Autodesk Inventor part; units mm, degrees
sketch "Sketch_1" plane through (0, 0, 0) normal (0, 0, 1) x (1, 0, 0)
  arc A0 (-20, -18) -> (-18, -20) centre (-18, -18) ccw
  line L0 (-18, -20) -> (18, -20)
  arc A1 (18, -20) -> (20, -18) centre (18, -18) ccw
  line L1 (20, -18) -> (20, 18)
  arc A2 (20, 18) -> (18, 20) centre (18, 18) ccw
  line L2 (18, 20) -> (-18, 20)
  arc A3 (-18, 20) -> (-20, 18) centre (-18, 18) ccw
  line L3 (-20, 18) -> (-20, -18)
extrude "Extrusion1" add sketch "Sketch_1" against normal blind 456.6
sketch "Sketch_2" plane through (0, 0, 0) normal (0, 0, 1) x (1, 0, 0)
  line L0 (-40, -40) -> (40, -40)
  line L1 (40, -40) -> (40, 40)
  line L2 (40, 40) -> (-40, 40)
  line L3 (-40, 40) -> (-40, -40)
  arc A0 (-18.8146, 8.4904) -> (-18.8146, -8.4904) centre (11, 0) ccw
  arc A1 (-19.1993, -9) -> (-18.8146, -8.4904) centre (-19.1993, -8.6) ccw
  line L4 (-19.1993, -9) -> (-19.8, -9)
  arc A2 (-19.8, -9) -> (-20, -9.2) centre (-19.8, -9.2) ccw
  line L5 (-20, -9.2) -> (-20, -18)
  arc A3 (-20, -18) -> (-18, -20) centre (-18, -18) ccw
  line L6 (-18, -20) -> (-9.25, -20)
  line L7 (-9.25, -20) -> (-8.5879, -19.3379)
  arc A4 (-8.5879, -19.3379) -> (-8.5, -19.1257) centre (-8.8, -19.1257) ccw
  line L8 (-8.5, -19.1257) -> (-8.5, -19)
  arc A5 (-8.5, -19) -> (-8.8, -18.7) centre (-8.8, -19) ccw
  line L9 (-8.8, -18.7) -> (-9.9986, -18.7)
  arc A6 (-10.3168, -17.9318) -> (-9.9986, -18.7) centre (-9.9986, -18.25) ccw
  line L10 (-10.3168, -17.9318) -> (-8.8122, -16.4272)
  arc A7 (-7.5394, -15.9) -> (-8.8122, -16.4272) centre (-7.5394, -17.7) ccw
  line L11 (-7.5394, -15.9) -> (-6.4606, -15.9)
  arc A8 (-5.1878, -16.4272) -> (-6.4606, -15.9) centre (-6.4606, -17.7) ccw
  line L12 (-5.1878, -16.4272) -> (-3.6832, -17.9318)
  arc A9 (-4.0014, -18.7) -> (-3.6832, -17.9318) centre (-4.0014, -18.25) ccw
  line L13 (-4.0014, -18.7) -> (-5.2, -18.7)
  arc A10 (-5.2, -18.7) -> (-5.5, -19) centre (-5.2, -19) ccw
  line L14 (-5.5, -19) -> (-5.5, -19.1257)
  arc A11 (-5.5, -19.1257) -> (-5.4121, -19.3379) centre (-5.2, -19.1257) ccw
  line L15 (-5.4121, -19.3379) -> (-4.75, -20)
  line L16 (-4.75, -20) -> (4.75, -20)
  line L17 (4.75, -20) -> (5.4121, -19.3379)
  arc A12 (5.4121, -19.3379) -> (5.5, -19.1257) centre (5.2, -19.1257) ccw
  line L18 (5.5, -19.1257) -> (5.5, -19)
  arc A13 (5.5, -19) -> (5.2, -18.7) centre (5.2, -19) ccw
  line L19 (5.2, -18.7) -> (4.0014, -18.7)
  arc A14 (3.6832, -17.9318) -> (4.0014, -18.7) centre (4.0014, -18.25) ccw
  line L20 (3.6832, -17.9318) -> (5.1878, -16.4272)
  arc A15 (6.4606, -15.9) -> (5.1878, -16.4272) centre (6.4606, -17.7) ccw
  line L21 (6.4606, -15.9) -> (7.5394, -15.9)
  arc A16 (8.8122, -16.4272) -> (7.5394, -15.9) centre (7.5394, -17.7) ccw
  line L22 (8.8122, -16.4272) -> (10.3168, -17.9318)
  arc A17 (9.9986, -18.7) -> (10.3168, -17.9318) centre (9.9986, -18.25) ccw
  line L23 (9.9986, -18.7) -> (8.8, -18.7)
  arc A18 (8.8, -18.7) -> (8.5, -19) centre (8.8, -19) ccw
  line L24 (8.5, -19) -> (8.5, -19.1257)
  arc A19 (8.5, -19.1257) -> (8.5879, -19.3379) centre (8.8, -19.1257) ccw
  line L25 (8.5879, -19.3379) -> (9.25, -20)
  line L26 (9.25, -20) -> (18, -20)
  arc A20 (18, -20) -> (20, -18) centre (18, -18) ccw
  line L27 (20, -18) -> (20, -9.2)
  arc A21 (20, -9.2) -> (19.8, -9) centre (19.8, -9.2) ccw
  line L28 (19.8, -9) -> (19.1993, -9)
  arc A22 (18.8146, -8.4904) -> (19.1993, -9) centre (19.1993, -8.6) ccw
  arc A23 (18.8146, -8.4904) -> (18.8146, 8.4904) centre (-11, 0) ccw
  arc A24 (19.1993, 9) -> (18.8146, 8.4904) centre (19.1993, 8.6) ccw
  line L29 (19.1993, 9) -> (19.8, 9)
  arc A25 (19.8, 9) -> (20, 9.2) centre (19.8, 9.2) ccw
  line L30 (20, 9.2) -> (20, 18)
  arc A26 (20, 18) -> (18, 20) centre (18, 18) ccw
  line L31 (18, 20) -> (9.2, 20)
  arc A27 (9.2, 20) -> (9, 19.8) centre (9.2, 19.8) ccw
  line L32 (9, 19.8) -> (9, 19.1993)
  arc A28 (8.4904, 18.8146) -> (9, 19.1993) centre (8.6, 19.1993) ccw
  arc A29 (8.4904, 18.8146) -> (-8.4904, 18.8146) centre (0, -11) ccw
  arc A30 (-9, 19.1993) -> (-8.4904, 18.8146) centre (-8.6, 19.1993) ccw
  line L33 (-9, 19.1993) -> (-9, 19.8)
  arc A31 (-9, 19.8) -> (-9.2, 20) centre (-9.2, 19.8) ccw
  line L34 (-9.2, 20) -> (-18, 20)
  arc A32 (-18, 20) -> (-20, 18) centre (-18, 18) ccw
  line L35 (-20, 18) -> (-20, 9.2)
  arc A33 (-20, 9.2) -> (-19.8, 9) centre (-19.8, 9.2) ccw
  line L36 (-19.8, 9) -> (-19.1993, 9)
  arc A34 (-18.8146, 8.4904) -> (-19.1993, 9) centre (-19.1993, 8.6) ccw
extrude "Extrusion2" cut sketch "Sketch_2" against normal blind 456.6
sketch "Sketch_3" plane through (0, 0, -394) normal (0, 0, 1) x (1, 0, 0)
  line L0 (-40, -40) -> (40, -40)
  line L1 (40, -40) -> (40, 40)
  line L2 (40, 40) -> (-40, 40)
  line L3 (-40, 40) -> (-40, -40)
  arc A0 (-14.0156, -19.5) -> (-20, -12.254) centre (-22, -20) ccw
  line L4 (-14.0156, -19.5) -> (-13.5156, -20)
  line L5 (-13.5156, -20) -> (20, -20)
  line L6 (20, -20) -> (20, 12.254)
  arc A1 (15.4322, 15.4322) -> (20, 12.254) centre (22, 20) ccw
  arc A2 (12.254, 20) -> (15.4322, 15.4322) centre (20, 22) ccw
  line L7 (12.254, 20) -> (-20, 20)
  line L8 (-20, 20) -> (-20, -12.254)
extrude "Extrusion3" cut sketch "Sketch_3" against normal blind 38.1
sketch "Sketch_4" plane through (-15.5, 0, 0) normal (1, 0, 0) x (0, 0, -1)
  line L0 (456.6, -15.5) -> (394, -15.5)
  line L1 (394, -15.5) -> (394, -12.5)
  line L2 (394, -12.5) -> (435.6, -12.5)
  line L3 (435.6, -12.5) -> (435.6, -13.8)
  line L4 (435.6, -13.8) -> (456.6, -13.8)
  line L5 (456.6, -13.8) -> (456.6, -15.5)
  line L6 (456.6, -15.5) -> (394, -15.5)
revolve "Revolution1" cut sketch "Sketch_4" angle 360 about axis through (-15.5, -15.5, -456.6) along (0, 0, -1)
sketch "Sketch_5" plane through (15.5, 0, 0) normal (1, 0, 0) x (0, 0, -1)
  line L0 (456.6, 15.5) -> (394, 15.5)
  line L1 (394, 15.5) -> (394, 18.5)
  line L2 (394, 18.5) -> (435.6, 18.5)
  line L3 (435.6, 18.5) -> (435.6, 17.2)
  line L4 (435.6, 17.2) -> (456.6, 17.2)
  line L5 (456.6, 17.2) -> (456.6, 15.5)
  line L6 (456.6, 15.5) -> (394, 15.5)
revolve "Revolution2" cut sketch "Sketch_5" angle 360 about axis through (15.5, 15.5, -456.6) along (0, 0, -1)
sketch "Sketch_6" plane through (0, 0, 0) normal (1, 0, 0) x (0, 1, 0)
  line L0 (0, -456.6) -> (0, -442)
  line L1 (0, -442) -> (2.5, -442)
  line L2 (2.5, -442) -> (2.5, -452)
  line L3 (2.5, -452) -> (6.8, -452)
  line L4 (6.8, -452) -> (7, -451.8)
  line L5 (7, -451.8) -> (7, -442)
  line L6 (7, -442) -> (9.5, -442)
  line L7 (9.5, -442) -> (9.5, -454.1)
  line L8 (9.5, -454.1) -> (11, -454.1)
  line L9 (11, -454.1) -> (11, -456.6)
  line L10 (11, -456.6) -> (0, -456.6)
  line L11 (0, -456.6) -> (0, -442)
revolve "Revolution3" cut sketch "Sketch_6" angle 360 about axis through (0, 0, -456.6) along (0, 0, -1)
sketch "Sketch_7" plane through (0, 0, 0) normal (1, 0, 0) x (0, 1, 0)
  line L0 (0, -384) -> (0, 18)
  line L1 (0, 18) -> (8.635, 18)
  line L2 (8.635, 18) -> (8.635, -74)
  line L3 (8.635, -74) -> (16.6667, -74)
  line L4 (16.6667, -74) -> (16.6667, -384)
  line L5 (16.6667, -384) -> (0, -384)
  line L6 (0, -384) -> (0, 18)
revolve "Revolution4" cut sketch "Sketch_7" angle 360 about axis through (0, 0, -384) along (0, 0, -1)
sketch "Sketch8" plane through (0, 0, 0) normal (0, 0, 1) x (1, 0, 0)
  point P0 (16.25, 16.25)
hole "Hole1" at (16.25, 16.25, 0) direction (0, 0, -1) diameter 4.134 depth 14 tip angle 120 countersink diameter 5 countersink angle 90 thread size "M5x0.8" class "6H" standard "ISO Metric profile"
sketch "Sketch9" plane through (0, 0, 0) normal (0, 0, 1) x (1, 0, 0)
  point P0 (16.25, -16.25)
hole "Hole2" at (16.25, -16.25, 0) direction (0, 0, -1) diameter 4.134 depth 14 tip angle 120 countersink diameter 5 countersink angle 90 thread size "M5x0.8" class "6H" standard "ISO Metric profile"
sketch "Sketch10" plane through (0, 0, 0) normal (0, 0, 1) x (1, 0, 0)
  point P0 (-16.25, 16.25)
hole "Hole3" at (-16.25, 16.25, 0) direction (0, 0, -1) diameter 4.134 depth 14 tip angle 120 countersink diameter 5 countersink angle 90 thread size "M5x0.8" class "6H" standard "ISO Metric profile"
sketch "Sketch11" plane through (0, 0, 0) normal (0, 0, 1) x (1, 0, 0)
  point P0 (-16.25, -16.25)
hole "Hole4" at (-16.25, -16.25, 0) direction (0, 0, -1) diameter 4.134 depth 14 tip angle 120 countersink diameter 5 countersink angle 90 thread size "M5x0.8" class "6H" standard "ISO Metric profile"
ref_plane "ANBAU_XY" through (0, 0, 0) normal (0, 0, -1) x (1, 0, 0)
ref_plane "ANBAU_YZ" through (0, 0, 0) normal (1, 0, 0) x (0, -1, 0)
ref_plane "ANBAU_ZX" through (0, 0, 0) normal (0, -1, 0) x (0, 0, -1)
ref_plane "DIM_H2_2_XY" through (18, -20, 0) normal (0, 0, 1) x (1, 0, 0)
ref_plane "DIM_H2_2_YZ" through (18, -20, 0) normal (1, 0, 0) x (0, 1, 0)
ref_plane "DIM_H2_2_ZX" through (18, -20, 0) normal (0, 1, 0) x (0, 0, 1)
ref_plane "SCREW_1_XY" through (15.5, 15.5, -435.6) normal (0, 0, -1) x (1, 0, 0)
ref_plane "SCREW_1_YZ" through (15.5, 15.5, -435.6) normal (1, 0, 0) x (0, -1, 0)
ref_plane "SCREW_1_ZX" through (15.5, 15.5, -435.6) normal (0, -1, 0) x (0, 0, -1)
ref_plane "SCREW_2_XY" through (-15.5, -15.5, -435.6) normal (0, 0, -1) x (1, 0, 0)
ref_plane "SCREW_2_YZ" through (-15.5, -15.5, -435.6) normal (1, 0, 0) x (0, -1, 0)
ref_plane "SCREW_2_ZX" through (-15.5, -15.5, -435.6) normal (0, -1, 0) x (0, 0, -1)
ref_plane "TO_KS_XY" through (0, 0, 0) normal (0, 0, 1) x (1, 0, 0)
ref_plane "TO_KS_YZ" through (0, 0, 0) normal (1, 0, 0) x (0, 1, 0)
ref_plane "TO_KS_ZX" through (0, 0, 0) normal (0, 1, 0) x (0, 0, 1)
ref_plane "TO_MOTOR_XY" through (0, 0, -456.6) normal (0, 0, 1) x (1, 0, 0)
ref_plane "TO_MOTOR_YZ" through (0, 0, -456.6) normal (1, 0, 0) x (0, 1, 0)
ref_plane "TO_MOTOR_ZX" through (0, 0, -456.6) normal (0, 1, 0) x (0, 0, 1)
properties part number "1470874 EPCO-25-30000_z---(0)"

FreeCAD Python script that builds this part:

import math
import FreeCAD as App
import Part
import Sketcher
from FreeCAD import Vector
Q = App.Units.Quantity


def add_polygon(sketch, points):
    """Adds a closed chain of lines whose ends are joined by coincident constraints."""
    first, n = sketch.GeometryCount, len(points)
    for a, b in zip(points, points[1:] + points[:1]):
        sketch.addGeometry(Part.LineSegment(App.Vector(*a, 0), App.Vector(*b, 0)), False)
    for i in range(n):
        sketch.addConstraint(Sketcher.Constraint("Coincident", first + i, 2, first + (i + 1) % n, 1))

doc = App.newDocument("Part")
body = doc.addObject("PartDesign::Body", "Body")

# Sketch on XY plane
sketch1 = body.newObject("Sketcher::SketchObject", "Sketch")
sketch1.AttachmentSupport = (doc.getObject("XY_Plane"), [""])
sketch1.MapMode = "FlatFace"
sketch1.addGeometry([
    Part.LineSegment(Vector(-20, 18, 0), Vector(-20, -18, 0)),  # 0
    Part.ArcOfCircle(Part.Circle(Vector(-18, -18, 0), Vector(0, 0, 1), 2), math.radians(180), math.radians(270)),  # 1
    Part.LineSegment(Vector(-18, -20, 0), Vector(18, -20, 0)),  # 2
    Part.ArcOfCircle(Part.Circle(Vector(18, -18, 0), Vector(0, 0, 1), 2), math.radians(-90), math.radians(0)),  # 3
    Part.LineSegment(Vector(20, -18, 0), Vector(20, 18, 0)),  # 4
    Part.ArcOfCircle(Part.Circle(Vector(18, 18, 0), Vector(0, 0, 1), 2), math.radians(0), math.radians(90)),  # 5
    Part.LineSegment(Vector(18, 20, 0), Vector(-18, 20, 0)),  # 6
    Part.ArcOfCircle(Part.Circle(Vector(-18, 18, 0), Vector(0, 0, 1), 2), math.radians(90), math.radians(180)),  # 7
], False)
sketch1.addConstraint([
    Sketcher.Constraint("Tangent", 0, 2, 1, 1),
    Sketcher.Constraint("Tangent", 1, 2, 2, 1),
    Sketcher.Constraint("Tangent", 2, 2, 3, 1),
    Sketcher.Constraint("Tangent", 3, 2, 4, 1),
    Sketcher.Constraint("Tangent", 4, 2, 5, 1),
    Sketcher.Constraint("Tangent", 5, 2, 6, 1),
    Sketcher.Constraint("Tangent", 6, 2, 7, 1),
    Sketcher.Constraint("Tangent", 7, 2, 0, 1),
    Sketcher.Constraint("Vertical", 0),
    Sketcher.Constraint("Horizontal", 2),
    Sketcher.Constraint("Vertical", 4),
    Sketcher.Constraint("Horizontal", 6),
    Sketcher.Constraint("Equal", 1, 3),
    Sketcher.Constraint("Equal", 3, 5),
    Sketcher.Constraint("Equal", 5, 7),
    Sketcher.Constraint("Symmetric", 1, 3, 5, 3, -1, 1),
    Sketcher.Constraint("Equal", 6, 0),
    Sketcher.Constraint("Radius", 1, Q("2 mm")),
    Sketcher.Constraint("DistanceX", 2, 1, 2, 2, Q("36 mm")),
])
pad1 = body.newObject("PartDesign::Pad", "Pad")
pad1.Profile = sketch1
pad1.Length = 456.6
pad1.Reversed = True

# Sketch on XY plane
sketch2 = body.newObject("Sketcher::SketchObject", "Sketch001")
sketch2.AttachmentSupport = (doc.getObject("XY_Plane"), [""])
sketch2.MapMode = "FlatFace"
add_polygon(sketch2, [(-40, 40), (-40, -40), (40, -40), (40, 40)])  # lines 0-3
sketch2.addGeometry(Part.ArcOfCircle(Part.Circle(Vector(11, 0, 0), Vector(0, 0, 1), 31), math.radians(164), math.radians(196)), False)  # 4
sketch2.addGeometry(Part.ArcOfCircle(Part.Circle(Vector(-19.2, 8.6, 0), Vector(0, 0, 1), 0.4), math.radians(-16), math.radians(90)), False)  # 5
sketch2.addGeometry(Part.LineSegment(Vector(-19.2, 9, 0), Vector(-19.8, 9, 0)), False)  # 6
sketch2.addGeometry(Part.ArcOfCircle(Part.Circle(Vector(-19.8, 9.2, 0), Vector(0, 0, 1), 0.2), math.radians(180), math.radians(270)), False)  # 7
sketch2.addGeometry(Part.LineSegment(Vector(-20, 9.2, 0), Vector(-20, 18, 0)), False)  # 8
sketch2.addGeometry(Part.ArcOfCircle(Part.Circle(Vector(-18, 18, 0), Vector(0, 0, 1), 2), math.radians(90), math.radians(180)), False)  # 9
sketch2.addGeometry(Part.LineSegment(Vector(-18, 20, 0), Vector(-9.2, 20, 0)), False)  # 10
sketch2.addGeometry(Part.ArcOfCircle(Part.Circle(Vector(-9.2, 19.8, 0), Vector(0, 0, 1), 0.2), math.radians(0), math.radians(90)), False)  # 11
sketch2.addGeometry(Part.LineSegment(Vector(-9, 19.8, 0), Vector(-9, 19.2, 0)), False)  # 12
sketch2.addGeometry(Part.ArcOfCircle(Part.Circle(Vector(-8.6, 19.2, 0), Vector(0, 0, 1), 0.4), math.radians(180), math.radians(286)), False)  # 13
sketch2.addGeometry(Part.ArcOfCircle(Part.Circle(Vector(0, -11, 0), Vector(0, 0, 1), 31), math.radians(74), math.radians(106)), False)  # 14
sketch2.addGeometry(Part.ArcOfCircle(Part.Circle(Vector(8.6, 19.2, 0), Vector(0, 0, 1), 0.4), math.radians(-106), math.radians(0)), False)  # 15
sketch2.addGeometry(Part.LineSegment(Vector(9, 19.2, 0), Vector(9, 19.8, 0)), False)  # 16
sketch2.addGeometry(Part.ArcOfCircle(Part.Circle(Vector(9.2, 19.8, 0), Vector(0, 0, 1), 0.2), math.radians(90), math.radians(180)), False)  # 17
sketch2.addGeometry(Part.LineSegment(Vector(9.2, 20, 0), Vector(18, 20, 0)), False)  # 18
sketch2.addGeometry(Part.ArcOfCircle(Part.Circle(Vector(18, 18, 0), Vector(0, 0, 1), 2), math.radians(0), math.radians(90)), False)  # 19
sketch2.addGeometry(Part.LineSegment(Vector(20, 18, 0), Vector(20, 9.2, 0)), False)  # 20
sketch2.addGeometry(Part.ArcOfCircle(Part.Circle(Vector(19.8, 9.2, 0), Vector(0, 0, 1), 0.2), math.radians(-90), math.radians(0)), False)  # 21
sketch2.addGeometry(Part.LineSegment(Vector(19.8, 9, 0), Vector(19.2, 9, 0)), False)  # 22
sketch2.addGeometry(Part.ArcOfCircle(Part.Circle(Vector(19.2, 8.6, 0), Vector(0, 0, 1), 0.4), math.radians(90), math.radians(196)), False)  # 23
sketch2.addGeometry(Part.ArcOfCircle(Part.Circle(Vector(-11, 0, 0), Vector(0, 0, 1), 31), math.radians(-16), math.radians(16)), False)  # 24
sketch2.addGeometry(Part.ArcOfCircle(Part.Circle(Vector(19.2, -8.6, 0), Vector(0, 0, 1), 0.4), math.radians(164), math.radians(270)), False)  # 25
sketch2.addGeometry(Part.LineSegment(Vector(19.2, -9, 0), Vector(19.8, -9, 0)), False)  # 26
sketch2.addGeometry(Part.ArcOfCircle(Part.Circle(Vector(19.8, -9.2, 0), Vector(0, 0, 1), 0.2), math.radians(0), math.radians(90)), False)  # 27
sketch2.addGeometry(Part.LineSegment(Vector(20, -9.2, 0), Vector(20, -18, 0)), False)  # 28
sketch2.addGeometry(Part.ArcOfCircle(Part.Circle(Vector(18, -18, 0), Vector(0, 0, 1), 2), math.radians(-90), math.radians(0)), False)  # 29
sketch2.addGeometry(Part.LineSegment(Vector(18, -20, 0), Vector(9.25, -20, 0)), False)  # 30
sketch2.addGeometry(Part.LineSegment(Vector(9.25, -20, 0), Vector(8.59, -19.34, 0)), False)  # 31
sketch2.addGeometry(Part.ArcOfCircle(Part.Circle(Vector(8.8, -19.13, 0), Vector(0, 0, 1), 0.3), math.radians(180), math.radians(225)), False)  # 32
sketch2.addGeometry(Part.LineSegment(Vector(8.5, -19.13, 0), Vector(8.5, -19, 0)), False)  # 33
sketch2.addGeometry(Part.ArcOfCircle(Part.Circle(Vector(8.8, -19, 0), Vector(0, 0, 1), 0.3), math.radians(90), math.radians(180)), False)  # 34
sketch2.addGeometry(Part.LineSegment(Vector(8.8, -18.7, 0), Vector(10, -18.7, 0)), False)  # 35
sketch2.addGeometry(Part.ArcOfCircle(Part.Circle(Vector(10, -18.25, 0), Vector(0, 0, 1), 0.45), math.radians(-90), math.radians(45)), False)  # 36
sketch2.addGeometry(Part.LineSegment(Vector(10.32, -17.93, 0), Vector(8.81, -16.43, 0)), False)  # 37
sketch2.addGeometry(Part.ArcOfCircle(Part.Circle(Vector(7.54, -17.7, 0), Vector(0, 0, 1), 1.8), math.radians(45), math.radians(90)), False)  # 38
sketch2.addGeometry(Part.LineSegment(Vector(7.54, -15.9, 0), Vector(6.46, -15.9, 0)), False)  # 39
sketch2.addGeometry(Part.ArcOfCircle(Part.Circle(Vector(6.46, -17.7, 0), Vector(0, 0, 1), 1.8), math.radians(90), math.radians(135)), False)  # 40
sketch2.addGeometry(Part.LineSegment(Vector(5.19, -16.43, 0), Vector(3.68, -17.93, 0)), False)  # 41
sketch2.addGeometry(Part.ArcOfCircle(Part.Circle(Vector(4, -18.25, 0), Vector(0, 0, 1), 0.45), math.radians(135), math.radians(270)), False)  # 42
sketch2.addGeometry(Part.LineSegment(Vector(4, -18.7, 0), Vector(5.2, -18.7, 0)), False)  # 43
sketch2.addGeometry(Part.ArcOfCircle(Part.Circle(Vector(5.2, -19, 0), Vector(0, 0, 1), 0.3), math.radians(0), math.radians(90)), False)  # 44
sketch2.addGeometry(Part.LineSegment(Vector(5.5, -19, 0), Vector(5.5, -19.13, 0)), False)  # 45
sketch2.addGeometry(Part.ArcOfCircle(Part.Circle(Vector(5.2, -19.13, 0), Vector(0, 0, 1), 0.3), math.radians(-45), math.radians(0)), False)  # 46
sketch2.addGeometry(Part.LineSegment(Vector(5.41, -19.34, 0), Vector(4.75, -20, 0)), False)  # 47
sketch2.addGeometry(Part.LineSegment(Vector(4.75, -20, 0), Vector(-4.75, -20, 0)), False)  # 48
sketch2.addGeometry(Part.LineSegment(Vector(-4.75, -20, 0), Vector(-5.41, -19.34, 0)), False)  # 49
sketch2.addGeometry(Part.ArcOfCircle(Part.Circle(Vector(-5.2, -19.13, 0), Vector(0, 0, 1), 0.3), math.radians(180), math.radians(225)), False)  # 50
sketch2.addGeometry(Part.LineSegment(Vector(-5.5, -19.13, 0), Vector(-5.5, -19, 0)), False)  # 51
sketch2.addGeometry(Part.ArcOfCircle(Part.Circle(Vector(-5.2, -19, 0), Vector(0, 0, 1), 0.3), math.radians(90), math.radians(180)), False)  # 52
sketch2.addGeometry(Part.LineSegment(Vector(-5.2, -18.7, 0), Vector(-4, -18.7, 0)), False)  # 53
sketch2.addGeometry(Part.ArcOfCircle(Part.Circle(Vector(-4, -18.25, 0), Vector(0, 0, 1), 0.45), math.radians(-90), math.radians(45)), False)  # 54
sketch2.addGeometry(Part.LineSegment(Vector(-3.68, -17.93, 0), Vector(-5.19, -16.43, 0)), False)  # 55
sketch2.addGeometry(Part.ArcOfCircle(Part.Circle(Vector(-6.46, -17.7, 0), Vector(0, 0, 1), 1.8), math.radians(45), math.radians(90)), False)  # 56
sketch2.addGeometry(Part.LineSegment(Vector(-6.46, -15.9, 0), Vector(-7.54, -15.9, 0)), False)  # 57
sketch2.addGeometry(Part.ArcOfCircle(Part.Circle(Vector(-7.54, -17.7, 0), Vector(0, 0, 1), 1.8), math.radians(90), math.radians(135)), False)  # 58
sketch2.addGeometry(Part.LineSegment(Vector(-8.81, -16.43, 0), Vector(-10.32, -17.93, 0)), False)  # 59
sketch2.addGeometry(Part.ArcOfCircle(Part.Circle(Vector(-10, -18.25, 0), Vector(0, 0, 1), 0.45), math.radians(135), math.radians(270)), False)  # 60
sketch2.addGeometry(Part.LineSegment(Vector(-10, -18.7, 0), Vector(-8.8, -18.7, 0)), False)  # 61
sketch2.addGeometry(Part.ArcOfCircle(Part.Circle(Vector(-8.8, -19, 0), Vector(0, 0, 1), 0.3), math.radians(0), math.radians(90)), False)  # 62
sketch2.addGeometry(Part.LineSegment(Vector(-8.5, -19, 0), Vector(-8.5, -19.13, 0)), False)  # 63
sketch2.addGeometry(Part.ArcOfCircle(Part.Circle(Vector(-8.8, -19.13, 0), Vector(0, 0, 1), 0.3), math.radians(-45), math.radians(0)), False)  # 64
sketch2.addGeometry(Part.LineSegment(Vector(-8.59, -19.34, 0), Vector(-9.25, -20, 0)), False)  # 65
sketch2.addGeometry(Part.LineSegment(Vector(-9.25, -20, 0), Vector(-18, -20, 0)), False)  # 66
sketch2.addGeometry(Part.ArcOfCircle(Part.Circle(Vector(-18, -18, 0), Vector(0, 0, 1), 2), math.radians(180), math.radians(270)), False)  # 67
sketch2.addGeometry(Part.LineSegment(Vector(-20, -18, 0), Vector(-20, -9.2, 0)), False)  # 68
sketch2.addGeometry(Part.ArcOfCircle(Part.Circle(Vector(-19.8, -9.2, 0), Vector(0, 0, 1), 0.2), math.radians(90), math.radians(180)), False)  # 69
sketch2.addGeometry(Part.LineSegment(Vector(-19.8, -9, 0), Vector(-19.2, -9, 0)), False)  # 70
sketch2.addGeometry(Part.ArcOfCircle(Part.Circle(Vector(-19.2, -8.6, 0), Vector(0, 0, 1), 0.4), math.radians(-90), math.radians(16)), False)  # 71
sketch2.addConstraint([
    Sketcher.Constraint("Tangent", 4, 1, 5, 1),
    Sketcher.Constraint("Tangent", 5, 2, 6, 1),
    Sketcher.Constraint("Tangent", 6, 2, 7, 2),
    Sketcher.Constraint("Tangent", 7, 1, 8, 1),
    Sketcher.Constraint("Tangent", 8, 2, 9, 2),
    Sketcher.Constraint("Tangent", 9, 1, 10, 1),
    Sketcher.Constraint("Tangent", 10, 2, 11, 2),
    Sketcher.Constraint("Tangent", 11, 1, 12, 1),
    Sketcher.Constraint("Tangent", 12, 2, 13, 1),
    Sketcher.Constraint("Tangent", 13, 2, 14, 2),
    Sketcher.Constraint("Tangent", 14, 1, 15, 1),
    Sketcher.Constraint("Tangent", 15, 2, 16, 1),
    Sketcher.Constraint("Tangent", 16, 2, 17, 2),
    Sketcher.Constraint("Tangent", 17, 1, 18, 1),
    Sketcher.Constraint("Tangent", 18, 2, 19, 2),
    Sketcher.Constraint("Tangent", 19, 1, 20, 1),
    Sketcher.Constraint("Tangent", 20, 2, 21, 2),
    Sketcher.Constraint("Tangent", 21, 1, 22, 1),
    Sketcher.Constraint("Tangent", 22, 2, 23, 1),
    Sketcher.Constraint("Tangent", 23, 2, 24, 2),
    Sketcher.Constraint("Tangent", 24, 1, 25, 1),
    Sketcher.Constraint("Tangent", 25, 2, 26, 1),
    Sketcher.Constraint("Tangent", 26, 2, 27, 2),
    Sketcher.Constraint("Tangent", 27, 1, 28, 1),
    Sketcher.Constraint("Tangent", 28, 2, 29, 2),
    Sketcher.Constraint("Tangent", 29, 1, 30, 1),
    Sketcher.Constraint("Coincident", 30, 2, 31, 1),
    Sketcher.Constraint("Tangent", 31, 2, 32, 2),
    Sketcher.Constraint("Tangent", 32, 1, 33, 1),
    Sketcher.Constraint("Tangent", 33, 2, 34, 2),
    Sketcher.Constraint("Tangent", 34, 1, 35, 1),
    Sketcher.Constraint("Tangent", 35, 2, 36, 1),
    Sketcher.Constraint("Tangent", 36, 2, 37, 1),
    Sketcher.Constraint("Tangent", 37, 2, 38, 1),
    Sketcher.Constraint("Tangent", 38, 2, 39, 1),
    Sketcher.Constraint("Tangent", 39, 2, 40, 1),
    Sketcher.Constraint("Tangent", 40, 2, 41, 1),
    Sketcher.Constraint("Tangent", 41, 2, 42, 1),
    Sketcher.Constraint("Tangent", 42, 2, 43, 1),
    Sketcher.Constraint("Tangent", 43, 2, 44, 2),
    Sketcher.Constraint("Tangent", 44, 1, 45, 1),
    Sketcher.Constraint("Tangent", 45, 2, 46, 2),
    Sketcher.Constraint("Tangent", 46, 1, 47, 1),
    Sketcher.Constraint("Coincident", 47, 2, 48, 1),
    Sketcher.Constraint("Coincident", 48, 2, 49, 1),
    Sketcher.Constraint("Tangent", 49, 2, 50, 2),
    Sketcher.Constraint("Tangent", 50, 1, 51, 1),
    Sketcher.Constraint("Tangent", 51, 2, 52, 2),
    Sketcher.Constraint("Tangent", 52, 1, 53, 1),
    Sketcher.Constraint("Tangent", 53, 2, 54, 1),
    Sketcher.Constraint("Tangent", 54, 2, 55, 1),
    Sketcher.Constraint("Tangent", 55, 2, 56, 1),
    Sketcher.Constraint("Tangent", 56, 2, 57, 1),
    Sketcher.Constraint("Tangent", 57, 2, 58, 1),
    Sketcher.Constraint("Tangent", 58, 2, 59, 1),
    Sketcher.Constraint("Tangent", 59, 2, 60, 1),
    Sketcher.Constraint("Tangent", 60, 2, 61, 1),
    Sketcher.Constraint("Tangent", 61, 2, 62, 2),
    Sketcher.Constraint("Tangent", 62, 1, 63, 1),
    Sketcher.Constraint("Tangent", 63, 2, 64, 2),
    Sketcher.Constraint("Tangent", 64, 1, 65, 1),
    Sketcher.Constraint("Coincident", 65, 2, 66, 1),
    Sketcher.Constraint("Tangent", 66, 2, 67, 2),
    Sketcher.Constraint("Tangent", 67, 1, 68, 1),
    Sketcher.Constraint("Tangent", 68, 2, 69, 2),
    Sketcher.Constraint("Tangent", 69, 1, 70, 1),
    Sketcher.Constraint("Tangent", 70, 2, 71, 1),
    Sketcher.Constraint("Tangent", 71, 2, 4, 2),
    Sketcher.Constraint("Vertical", 0),
    Sketcher.Constraint("Horizontal", 1),
    Sketcher.Constraint("Vertical", 2),
    Sketcher.Constraint("Horizontal", 3),
    Sketcher.Constraint("Horizontal", 6),
    Sketcher.Constraint("Vertical", 8),
    Sketcher.Constraint("Horizontal", 10),
    Sketcher.Constraint("Vertical", 12),
    Sketcher.Constraint("Vertical", 16),
    Sketcher.Constraint("Horizontal", 18),
    Sketcher.Constraint("Vertical", 20),
    Sketcher.Constraint("Horizontal", 22),
    Sketcher.Constraint("Horizontal", 26),
    Sketcher.Constraint("Vertical", 28),
    Sketcher.Constraint("Horizontal", 30),
    Sketcher.Constraint("Vertical", 33),
    Sketcher.Constraint("Horizontal", 35),
    Sketcher.Constraint("Horizontal", 39),
    Sketcher.Constraint("Horizontal", 43),
    Sketcher.Constraint("Vertical", 45),
    Sketcher.Constraint("Horizontal", 48),
    Sketcher.Constraint("Vertical", 51),
    Sketcher.Constraint("Horizontal", 53),
    Sketcher.Constraint("Horizontal", 57),
    Sketcher.Constraint("Horizontal", 61),
    Sketcher.Constraint("Vertical", 63),
    Sketcher.Constraint("Horizontal", 66),
    Sketcher.Constraint("Vertical", 68),
    Sketcher.Constraint("Horizontal", 70),
    Sketcher.Constraint("Equal", 7, 11),
    Sketcher.Constraint("Equal", 5, 13),
    Sketcher.Constraint("Equal", 4, 14),
    Sketcher.Constraint("Equal", 13, 15),
    Sketcher.Constraint("Equal", 11, 17),
    Sketcher.Constraint("Equal", 9, 19),
    Sketcher.Constraint("Equal", 17, 21),
    Sketcher.Constraint("Equal", 15, 23),
    Sketcher.Constraint("Equal", 14, 24),
    Sketcher.Constraint("Equal", 23, 25),
    Sketcher.Constraint("Equal", 21, 27),
    Sketcher.Constraint("Equal", 19, 29),
    Sketcher.Constraint("Equal", 32, 34),
    Sketcher.Constraint("Equal", 38, 40),
    Sketcher.Constraint("Equal", 36, 42),
    Sketcher.Constraint("Equal", 34, 44),
    Sketcher.Constraint("Equal", 44, 46),
    Sketcher.Constraint("Equal", 46, 50),
    Sketcher.Constraint("Equal", 50, 52),
    Sketcher.Constraint("Equal", 42, 54),
    Sketcher.Constraint("Equal", 40, 56),
    Sketcher.Constraint("Equal", 56, 58),
    Sketcher.Constraint("Equal", 54, 60),
    Sketcher.Constraint("Equal", 52, 62),
    Sketcher.Constraint("Equal", 62, 64),
    Sketcher.Constraint("Equal", 29, 67),
    Sketcher.Constraint("Equal", 27, 69),
    Sketcher.Constraint("Equal", 25, 71),
    Sketcher.Constraint("Symmetric", 4, 3, 24, 3, -1, 1),
    Sketcher.Constraint("Symmetric", 7, 3, 27, 3, -1, 1),
    Sketcher.Constraint("Symmetric", 19, 3, 67, 3, -1, 1),
    Sketcher.Constraint("Symmetric", 0, 2, 2, 2, -1, 1),
    Sketcher.Constraint("Symmetric", 13, 3, 15, 3, -2),
    Sketcher.Constraint("Symmetric", 9, 3, 19, 3, -2),
    Sketcher.Constraint("Symmetric", 5, 3, 23, 3, -2),
    Sketcher.Constraint("Symmetric", 46, 3, 50, 3, -2),
    Sketcher.Constraint("Symmetric", 42, 3, 54, 3, -2),
    Sketcher.Constraint("Symmetric", 40, 3, 56, 3, -2),
    Sketcher.Constraint("Symmetric", 36, 3, 60, 3, -2),
    Sketcher.Constraint("Symmetric", 32, 3, 64, 3, -2),
    Sketcher.Constraint("Symmetric", 30, 2, 65, 2, -2),
    Sketcher.Constraint("Parallel", 31, 37),
    Sketcher.Constraint("Perpendicular", 37, 41),
    Sketcher.Constraint("Parallel", 41, 47),
    Sketcher.Constraint("Perpendicular", 47, 49),
    Sketcher.Constraint("Parallel", 49, 55),
    Sketcher.Constraint("Perpendicular", 55, 59),
    Sketcher.Constraint("Horizontal", 36, 3, 42, 3),
    Sketcher.Constraint("Horizontal", 32, 3, 46, 3),
    Sketcher.Constraint("Horizontal", 27, 3, 69, 3),
    Sketcher.Constraint("Horizontal", 30, 2, 47, 2),
    Sketcher.Constraint("Equal", 35, 43),
    Sketcher.Constraint("Equal", 3, 0),
    Sketcher.Constraint("Equal", 18, 8),
    Sketcher.Constraint("Equal", 70, 12),
    Sketcher.Constraint("Radius", 4, Q("31 mm")),
    Sketcher.Constraint("Radius", 9, Q("2 mm")),
    Sketcher.Constraint("Radius", 5, Q("0.4 mm")),
    Sketcher.Constraint("Radius", 7, Q("0.2 mm")),
    Sketcher.Constraint("Radius", 32, Q("0.3 mm")),
    Sketcher.Constraint("Radius", 38, Q("1.8 mm")),
    Sketcher.Constraint("DistanceX", 1, 1, 1, 2, Q("80 mm")),
    Sketcher.Constraint("Radius", 36, Q("0.45 mm")),
    Sketcher.Constraint("DistanceX", 10, 1, 10, 2, Q("8.8 mm")),
    Sketcher.Constraint("DistanceX", 48, 2, 48, 1, Q("9.5 mm")),
    Sketcher.Constraint("DistanceX", -1, 1, 4, 3, Q("11 mm")),
    Sketcher.Constraint("DistanceX", 9, 3, -1, 1, Q("18 mm")),
    Sketcher.Constraint("DistanceY", -1, 1, 9, 3, Q("18 mm")),
    Sketcher.Constraint("DistanceY", 34, 3, -1, 1, Q("19 mm")),
    Sketcher.Constraint("DistanceX", 30, 2, 30, 1, Q("8.75 mm")),
    Sketcher.Constraint("DistanceX", -1, 1, 32, 3, Q("8.8 mm")),
    Sketcher.Constraint("DistanceY", 38, 3, -1, 1, Q("17.7 mm")),
    Sketcher.Constraint("DistanceX", 35, 1, 35, 2, Q("1.1986 mm")),
])
pocket1 = body.newObject("PartDesign::Pocket", "Pocket")
pocket1.Profile = sketch2
pocket1.Length = 456.6

# Sketch on XY plane
sketch3 = body.newObject("Sketcher::SketchObject", "Sketch002")
sketch3.AttachmentSupport = (doc.getObject("XY_Plane"), [""])
sketch3.MapMode = "FlatFace"
sketch3.AttachmentOffset = App.Placement(Vector(0, 0, -394), App.Rotation())
add_polygon(sketch3, [(-40, 40), (-40, -40), (40, -40), (40, 40)])  # lines 0-3
sketch3.addGeometry(Part.LineSegment(Vector(-13.5, -20, 0), Vector(-14, -19.5, 0)), False)  # 4
sketch3.addGeometry(Part.ArcOfCircle(Part.Circle(Vector(-22, -20, 0), Vector(0, 0, 1), 8), math.radians(4), math.radians(76)), False)  # 5
sketch3.addGeometry(Part.LineSegment(Vector(-20, -12.3, 0), Vector(-20, 20, 0)), False)  # 6
sketch3.addGeometry(Part.LineSegment(Vector(-20, 20, 0), Vector(12.3, 20, 0)), False)  # 7
sketch3.addGeometry(Part.ArcOfCircle(Part.Circle(Vector(20, 22, 0), Vector(0, 0, 1), 8), math.radians(-166), math.radians(-125)), False)  # 8
sketch3.addGeometry(Part.ArcOfCircle(Part.Circle(Vector(22, 20, 0), Vector(0, 0, 1), 8), math.radians(-145), math.radians(-104)), False)  # 9
sketch3.addGeometry(Part.LineSegment(Vector(20, 12.3, 0), Vector(20, -20, 0)), False)  # 10
sketch3.addGeometry(Part.LineSegment(Vector(20, -20, 0), Vector(-13.5, -20, 0)), False)  # 11
sketch3.addConstraint([
    Sketcher.Constraint("Coincident", 4, 2, 5, 1),
    Sketcher.Constraint("Coincident", 5, 2, 6, 1),
    Sketcher.Constraint("Coincident", 6, 2, 7, 1),
    Sketcher.Constraint("Coincident", 7, 2, 8, 1),
    Sketcher.Constraint("Coincident", 8, 2, 9, 1),
    Sketcher.Constraint("Coincident", 9, 2, 10, 1),
    Sketcher.Constraint("Coincident", 10, 2, 11, 1),
    Sketcher.Constraint("Coincident", 11, 2, 4, 1),
    Sketcher.Constraint("Vertical", 0),
    Sketcher.Constraint("Horizontal", 1),
    Sketcher.Constraint("Vertical", 2),
    Sketcher.Constraint("Horizontal", 3),
    Sketcher.Constraint("Vertical", 6),
    Sketcher.Constraint("Horizontal", 7),
    Sketcher.Constraint("Vertical", 10),
    Sketcher.Constraint("Horizontal", 11),
    Sketcher.Constraint("Equal", 5, 8),
    Sketcher.Constraint("Equal", 8, 9),
    Sketcher.Constraint("Symmetric", 5, 3, 9, 3, -1, 1),
    Sketcher.Constraint("Symmetric", 0, 2, 2, 2, -1, 1),
    Sketcher.Constraint("Symmetric", 6, 2, 10, 2, -1, 1),
    Sketcher.Constraint("Horizontal", 9, 3, 6, 2),
    Sketcher.Constraint("Vertical", 8, 3, 9, 2),
    Sketcher.Constraint("Equal", 3, 0),
    Sketcher.Constraint("Equal", 7, 6),
    Sketcher.Constraint("Radius", 5, Q("8 mm")),
    Sketcher.Constraint("DistanceX", 1, 1, 1, 2, Q("80 mm")),
    Sketcher.Constraint("Angle", 4, Q("135 deg")),
    Sketcher.Constraint("DistanceX", 5, 3, -1, 1, Q("22 mm")),
    Sketcher.Constraint("DistanceY", 5, 3, -1, 1, Q("20 mm")),
    Sketcher.Constraint("DistanceX", -1, 1, 8, 3, Q("20 mm")),
    Sketcher.Constraint("DistanceY", 4, 2, -1, 1, Q("19.5 mm")),
])
pocket2 = body.newObject("PartDesign::Pocket", "Pocket001")
pocket2.Profile = sketch3
pocket2.Length = 38.1

# Sketch on YZ plane
sketch4 = body.newObject("Sketcher::SketchObject", "Sketch003")
sketch4.AttachmentSupport = (doc.getObject("YZ_Plane"), [""])
sketch4.MapMode = "FlatFace"
sketch4.AttachmentOffset = App.Placement(Vector(0, 0, -15.5), App.Rotation())
add_polygon(sketch4, [(-15.5, -394), (-15.5, -456.6), (-13.8, -456.6), (-13.8, -435.6), (-12.5, -435.6), (-12.5, -394)])  # lines 0-5
sketch4.addGeometry(Part.LineSegment(Vector(-15.5, -394, 0), Vector(-15.5, -456.6, 0)), True)  # axis
sketch4.addConstraint([
    Sketcher.Constraint("Vertical", 0),
    Sketcher.Constraint("Horizontal", 1),
    Sketcher.Constraint("Vertical", 2),
    Sketcher.Constraint("Horizontal", 3),
    Sketcher.Constraint("Vertical", 4),
    Sketcher.Constraint("Horizontal", 5),
    Sketcher.Constraint("Vertical", 6),
    Sketcher.Constraint("Coincident", 6, 1, 5, 2),
    Sketcher.Constraint("Horizontal", 1, 2, 6, 2),
    Sketcher.Constraint("DistanceX", 5, 2, 5, 1, Q("3 mm")),
    Sketcher.Constraint("DistanceY", 2, 1, 2, 2, Q("21 mm")),
    Sketcher.Constraint("DistanceX", 1, 1, 1, 2, Q("1.7 mm")),
    Sketcher.Constraint("DistanceY", 0, 2, 0, 1, Q("62.6 mm")),
    Sketcher.Constraint("DistanceY", 4, 2, -1, 1, Q("394 mm")),
    Sketcher.Constraint("DistanceX", 0, 2, -1, 1, Q("15.5 mm")),
])
groove = body.newObject("PartDesign::Groove", "Groove")
groove.Profile = sketch4
groove.ReferenceAxis = (sketch4, ["Axis0"])
groove.Angle = 360

# Sketch on YZ plane
sketch5 = body.newObject("Sketcher::SketchObject", "Sketch004")
sketch5.AttachmentSupport = (doc.getObject("YZ_Plane"), [""])
sketch5.MapMode = "FlatFace"
sketch5.AttachmentOffset = App.Placement(Vector(0, 0, 15.5), App.Rotation())
add_polygon(sketch5, [(15.5, -394), (15.5, -456.6), (17.2, -456.6), (17.2, -435.6), (18.5, -435.6), (18.5, -394)])  # lines 0-5
sketch5.addGeometry(Part.LineSegment(Vector(15.5, -394, 0), Vector(15.5, -456.6, 0)), True)  # axis
sketch5.addConstraint([
    Sketcher.Constraint("Vertical", 0),
    Sketcher.Constraint("Horizontal", 1),
    Sketcher.Constraint("Vertical", 2),
    Sketcher.Constraint("Horizontal", 3),
    Sketcher.Constraint("Vertical", 4),
    Sketcher.Constraint("Horizontal", 5),
    Sketcher.Constraint("Vertical", 6),
    Sketcher.Constraint("Coincident", 6, 1, 5, 2),
    Sketcher.Constraint("Horizontal", 1, 2, 6, 2),
    Sketcher.Constraint("DistanceX", 5, 2, 5, 1, Q("3 mm")),
    Sketcher.Constraint("DistanceY", 2, 1, 2, 2, Q("21 mm")),
    Sketcher.Constraint("DistanceX", 1, 1, 1, 2, Q("1.7 mm")),
    Sketcher.Constraint("DistanceY", 0, 2, 0, 1, Q("62.6 mm")),
    Sketcher.Constraint("DistanceY", 4, 2, -1, 1, Q("394 mm")),
    Sketcher.Constraint("DistanceX", -1, 1, 0, 2, Q("15.5 mm")),
])
groove2 = body.newObject("PartDesign::Groove", "Groove001")
groove2.Profile = sketch5
groove2.ReferenceAxis = (sketch5, ["Axis0"])
groove2.Angle = 360

# Sketch on YZ plane
sketch6 = body.newObject("Sketcher::SketchObject", "Sketch005")
sketch6.AttachmentSupport = (doc.getObject("YZ_Plane"), [""])
sketch6.MapMode = "FlatFace"
add_polygon(sketch6, [(0, -442), (0, -456.6), (11, -456.6), (11, -454.1), (9.5, -454.1), (9.5, -442), (7, -442), (7, -451.8), (6.8, -452), (2.5, -452), (2.5, -442)])  # lines 0-10
sketch6.addConstraint([
    Sketcher.Constraint("Vertical", 0),
    Sketcher.Constraint("Horizontal", 1),
    Sketcher.Constraint("Vertical", 2),
    Sketcher.Constraint("Horizontal", 3),
    Sketcher.Constraint("Vertical", 4),
    Sketcher.Constraint("Horizontal", 5),
    Sketcher.Constraint("Vertical", 6),
    Sketcher.Constraint("Horizontal", 8),
    Sketcher.Constraint("Vertical", 9),
    Sketcher.Constraint("Horizontal", 10),
    Sketcher.Constraint("PointOnObject", 0, 2, -2),
    Sketcher.Constraint("Horizontal", 5, 2, 9, 2),
    Sketcher.Constraint("Equal", 5, 10),
    Sketcher.Constraint("Equal", 10, 2),
    Sketcher.Constraint("DistanceX", 1, 1, 1, 2, Q("11 mm")),
    Sketcher.Constraint("DistanceY", 9, 1, 9, 2, Q("10 mm")),
    Sketcher.Constraint("Angle", 7, Q("-135 deg")),
    Sketcher.Constraint("DistanceX", 3, 2, 3, 1, Q("1.5 mm")),
    Sketcher.Constraint("DistanceX", 5, 2, 5, 1, Q("2.5 mm")),
    Sketcher.Constraint("DistanceX", 8, 2, 8, 1, Q("4.3 mm")),
    Sketcher.Constraint("DistanceY", 0, 2, 0, 1, Q("14.6 mm")),
    Sketcher.Constraint("DistanceY", 4, 2, -1, 1, Q("442 mm")),
])
groove3 = body.newObject("PartDesign::Groove", "Groove002")
groove3.Profile = sketch6
groove3.ReferenceAxis = (sketch6, ["V_Axis"])
groove3.Angle = 360

# Sketch on YZ plane
sketch7 = body.newObject("Sketcher::SketchObject", "Sketch006")
sketch7.AttachmentSupport = (doc.getObject("YZ_Plane"), [""])
sketch7.MapMode = "FlatFace"
add_polygon(sketch7, [(0, 18), (0, -384), (17, -384), (17, -74), (9, -74), (9, 18)])  # lines 0-5
sketch7.addConstraint([
    Sketcher.Constraint("Vertical", 0),
    Sketcher.Constraint("Horizontal", 1),
    Sketcher.Constraint("Vertical", 2),
    Sketcher.Constraint("Horizontal", 3),
    Sketcher.Constraint("Vertical", 4),
    Sketcher.Constraint("Horizontal", 5),
    Sketcher.Constraint("PointOnObject", 0, 2, -2),
    Sketcher.Constraint("DistanceY", 0, 2, 0, 1, Q("402 mm")),
    Sketcher.Constraint("DistanceY", 2, 1, 2, 2, Q("310 mm")),
    Sketcher.Constraint("DistanceY", 0, 2, -1, 1, Q("384 mm")),
    Sketcher.Constraint("DistanceX", 5, 2, 5, 1, Q("8.635 mm")),
    Sketcher.Constraint("DistanceX", 1, 1, 1, 2, Q("16.6667 mm")),
])
groove4 = body.newObject("PartDesign::Groove", "Groove003")
groove4.Profile = sketch7
groove4.ReferenceAxis = (sketch7, ["V_Axis"])
groove4.Angle = 360

# Sketch on XY plane
sketch8 = body.newObject("Sketcher::SketchObject", "Sketch007")
sketch8.AttachmentSupport = (doc.getObject("XY_Plane"), [""])
sketch8.MapMode = "FlatFace"
sketch8.addGeometry(Part.Circle(Vector(16.2, 16.2, 0), Vector(0, 0, 1), 2.1), False)
sketch8.addConstraint([
    Sketcher.Constraint("Diameter", 0, Q("4.134 mm")),
    Sketcher.Constraint("DistanceX", -1, 1, 0, 3, Q("16.25 mm")),
    Sketcher.Constraint("DistanceY", -1, 1, 0, 3, Q("16.25 mm")),
])
doc.recompute()
hole = body.newObject("PartDesign::Hole", "Hole")
hole.Profile = sketch8
hole.ThreadType = "None"
hole.Diameter = 4.134
hole.DepthType = "Dimension"
hole.Depth = 14
hole.DrillPoint = "Angled"
hole.DrillPointAngle = 120
hole.HoleCutType = "Countersink"
hole.HoleCutDiameter = 5
hole.HoleCutCountersinkAngle = 90

# Sketch on XY plane
sketch9 = body.newObject("Sketcher::SketchObject", "Sketch008")
sketch9.AttachmentSupport = (doc.getObject("XY_Plane"), [""])
sketch9.MapMode = "FlatFace"
sketch9.addGeometry(Part.Circle(Vector(16.2, -16.2, 0), Vector(0, 0, 1), 2.1), False)
sketch9.addConstraint([
    Sketcher.Constraint("Diameter", 0, Q("4.134 mm")),
    Sketcher.Constraint("DistanceX", -1, 1, 0, 3, Q("16.25 mm")),
    Sketcher.Constraint("DistanceY", 0, 3, -1, 1, Q("16.25 mm")),
])
doc.recompute()
hole2 = body.newObject("PartDesign::Hole", "Hole001")
hole2.Profile = sketch9
hole2.ThreadType = "None"
hole2.Diameter = 4.134
hole2.DepthType = "Dimension"
hole2.Depth = 14
hole2.DrillPoint = "Angled"
hole2.DrillPointAngle = 120
hole2.HoleCutType = "Countersink"
hole2.HoleCutDiameter = 5
hole2.HoleCutCountersinkAngle = 90

# Sketch on XY plane
sketch10 = body.newObject("Sketcher::SketchObject", "Sketch009")
sketch10.AttachmentSupport = (doc.getObject("XY_Plane"), [""])
sketch10.MapMode = "FlatFace"
sketch10.addGeometry(Part.Circle(Vector(-16.2, 16.2, 0), Vector(0, 0, 1), 2.1), False)
sketch10.addConstraint([
    Sketcher.Constraint("Diameter", 0, Q("4.134 mm")),
    Sketcher.Constraint("DistanceX", 0, 3, -1, 1, Q("16.25 mm")),
    Sketcher.Constraint("DistanceY", -1, 1, 0, 3, Q("16.25 mm")),
])
doc.recompute()
hole3 = body.newObject("PartDesign::Hole", "Hole002")
hole3.Profile = sketch10
hole3.ThreadType = "None"
hole3.Diameter = 4.134
hole3.DepthType = "Dimension"
hole3.Depth = 14
hole3.DrillPoint = "Angled"
hole3.DrillPointAngle = 120
hole3.HoleCutType = "Countersink"
hole3.HoleCutDiameter = 5
hole3.HoleCutCountersinkAngle = 90

# Sketch on XY plane
sketch11 = body.newObject("Sketcher::SketchObject", "Sketch010")
sketch11.AttachmentSupport = (doc.getObject("XY_Plane"), [""])
sketch11.MapMode = "FlatFace"
sketch11.addGeometry(Part.Circle(Vector(-16.2, -16.2, 0), Vector(0, 0, 1), 2.1), False)
sketch11.addConstraint([
    Sketcher.Constraint("Diameter", 0, Q("4.134 mm")),
    Sketcher.Constraint("DistanceX", 0, 3, -1, 1, Q("16.25 mm")),
    Sketcher.Constraint("DistanceY", 0, 3, -1, 1, Q("16.25 mm")),
])
doc.recompute()
hole4 = body.newObject("PartDesign::Hole", "Hole003")
hole4.Profile = sketch11
hole4.ThreadType = "None"
hole4.Diameter = 4.134
hole4.DepthType = "Dimension"
hole4.Depth = 14
hole4.DrillPoint = "Angled"
hole4.DrillPointAngle = 120
hole4.HoleCutType = "Countersink"
hole4.HoleCutDiameter = 5
hole4.HoleCutCountersinkAngle = 90

doc.recompute()
